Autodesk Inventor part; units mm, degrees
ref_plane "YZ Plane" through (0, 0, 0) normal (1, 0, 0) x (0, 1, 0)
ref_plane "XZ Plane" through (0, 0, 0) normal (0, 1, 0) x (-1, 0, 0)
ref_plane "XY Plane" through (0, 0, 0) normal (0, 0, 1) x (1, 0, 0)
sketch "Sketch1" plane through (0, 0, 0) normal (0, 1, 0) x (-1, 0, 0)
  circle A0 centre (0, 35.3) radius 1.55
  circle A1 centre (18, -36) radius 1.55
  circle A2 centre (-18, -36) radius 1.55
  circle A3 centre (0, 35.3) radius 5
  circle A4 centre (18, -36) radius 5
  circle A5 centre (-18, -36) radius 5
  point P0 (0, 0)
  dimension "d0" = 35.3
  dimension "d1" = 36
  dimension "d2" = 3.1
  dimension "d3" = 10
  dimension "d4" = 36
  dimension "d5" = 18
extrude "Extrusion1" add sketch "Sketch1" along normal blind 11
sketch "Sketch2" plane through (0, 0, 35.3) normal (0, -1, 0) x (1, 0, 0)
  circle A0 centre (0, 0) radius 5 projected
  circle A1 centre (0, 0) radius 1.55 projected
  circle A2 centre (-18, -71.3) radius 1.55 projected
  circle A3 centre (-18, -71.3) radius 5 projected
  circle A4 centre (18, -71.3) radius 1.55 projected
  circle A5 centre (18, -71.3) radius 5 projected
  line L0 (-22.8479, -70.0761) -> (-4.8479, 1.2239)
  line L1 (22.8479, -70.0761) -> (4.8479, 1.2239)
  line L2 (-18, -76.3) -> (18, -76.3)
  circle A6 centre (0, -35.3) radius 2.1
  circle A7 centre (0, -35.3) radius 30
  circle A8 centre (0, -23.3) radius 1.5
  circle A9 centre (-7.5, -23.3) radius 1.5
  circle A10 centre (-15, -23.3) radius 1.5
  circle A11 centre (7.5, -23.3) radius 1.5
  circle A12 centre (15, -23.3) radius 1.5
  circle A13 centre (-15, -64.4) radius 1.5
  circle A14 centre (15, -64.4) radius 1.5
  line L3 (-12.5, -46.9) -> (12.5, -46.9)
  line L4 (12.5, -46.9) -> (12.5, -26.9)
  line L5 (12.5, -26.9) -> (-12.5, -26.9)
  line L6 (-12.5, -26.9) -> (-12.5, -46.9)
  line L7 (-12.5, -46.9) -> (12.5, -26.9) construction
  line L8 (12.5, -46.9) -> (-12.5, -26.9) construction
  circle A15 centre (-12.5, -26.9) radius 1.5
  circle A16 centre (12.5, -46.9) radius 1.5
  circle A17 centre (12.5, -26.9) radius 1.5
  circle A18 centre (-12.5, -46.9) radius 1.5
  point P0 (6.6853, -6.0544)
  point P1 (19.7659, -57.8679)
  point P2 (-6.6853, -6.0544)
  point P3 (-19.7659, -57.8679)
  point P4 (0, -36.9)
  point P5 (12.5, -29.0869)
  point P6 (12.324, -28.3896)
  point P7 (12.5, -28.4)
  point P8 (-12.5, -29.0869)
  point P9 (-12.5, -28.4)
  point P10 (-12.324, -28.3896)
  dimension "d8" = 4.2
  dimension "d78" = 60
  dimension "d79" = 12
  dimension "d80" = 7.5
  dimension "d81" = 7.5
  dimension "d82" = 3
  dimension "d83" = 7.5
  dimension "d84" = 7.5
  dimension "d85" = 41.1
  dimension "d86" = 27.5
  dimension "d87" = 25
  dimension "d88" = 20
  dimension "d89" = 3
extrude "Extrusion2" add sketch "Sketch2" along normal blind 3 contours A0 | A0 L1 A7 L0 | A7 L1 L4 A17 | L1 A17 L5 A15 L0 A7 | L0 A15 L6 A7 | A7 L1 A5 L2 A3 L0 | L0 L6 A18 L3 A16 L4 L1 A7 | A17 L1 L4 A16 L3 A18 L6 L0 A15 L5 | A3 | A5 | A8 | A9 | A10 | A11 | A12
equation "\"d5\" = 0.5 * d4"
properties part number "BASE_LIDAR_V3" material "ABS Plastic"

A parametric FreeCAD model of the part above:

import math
import FreeCAD as App
import Part
import Sketcher

V = App.Vector

doc = App.newDocument("Part")
params = doc.addObject("Spreadsheet::Sheet", "Params")
for row, (alias, value) in enumerate([
    ("sketch1_diameter", "10 mm"),
    ("sketch1_diameter2", "3.1 mm"),
    ("pad1_length", "11 mm"),
    ("sketch2_diameter", "3 mm"),
    ("sketch2_radius", "30 mm"),
    ("sketch2_diameter2", "4.2 mm"),
    ("sketch2_radius2", "5 mm"),
    ("sketch2_diameter3", "3.1 mm"),
    ("pad2_length", "3 mm"),
], start=1):
    params.set(f"A{row}", alias)
    params.set(f"B{row}", "=" + value)
    params.setAlias(f"B{row}", alias)

body = doc.addObject("PartDesign::Body", "Body")
body.AllowCompound = True

# Sketch on XZ plane
sketch1 = doc.addObject("Sketcher::SketchObject", "Sketch")
body.addObject(sketch1)
sketch1.AttachmentSupport = (doc.XZ_Plane, [""])
sketch1.MapMode = "FlatFace"
sketch1.addGeometry(Part.Circle(V(0, 35.3, 0), V(0, 0, 1), 5), False)
sketch1.addGeometry(Part.Circle(V(0, 35.3, 0), V(0, 0, 1), 1.6), False)
sketch1.addGeometry(Part.Circle(V(-18, -36, 0), V(0, 0, 1), 5), False)
sketch1.addGeometry(Part.Circle(V(-18, -36, 0), V(0, 0, 1), 1.6), False)
sketch1.addGeometry(Part.Circle(V(18, -36, 0), V(0, 0, 1), 5), False)
sketch1.addGeometry(Part.Circle(V(18, -36, 0), V(0, 0, 1), 1.6), False)
sketch1.addConstraint(Sketcher.Constraint("Coincident", 1, 3, 0, 3))
sketch1.addConstraint(Sketcher.Constraint("Coincident", 3, 3, 2, 3))
sketch1.addConstraint(Sketcher.Constraint("Coincident", 5, 3, 4, 3))
sketch1.addConstraint(Sketcher.Constraint("Equal", 0, 2))
sketch1.addConstraint(Sketcher.Constraint("Equal", 1, 3))
sketch1.addConstraint(Sketcher.Constraint("Equal", 2, 4))
sketch1.addConstraint(Sketcher.Constraint("Equal", 3, 5))
sketch1.addConstraint(Sketcher.Constraint("Symmetric", 2, 3, 4, 3, -2))
sketch1.addConstraint(Sketcher.Constraint("PointOnObject", 0, 3, -2))
sketch1.addConstraint(Sketcher.Constraint("Diameter", 0, 10.0))
sketch1.addConstraint(Sketcher.Constraint("Diameter", 1, 3.1))
sketch1.addConstraint(Sketcher.Constraint("DistanceX", 2, 3, -1, 1, 18.0))
sketch1.addConstraint(Sketcher.Constraint("DistanceY", 2, 3, -1, 1, 36.0))
sketch1.addConstraint(Sketcher.Constraint("DistanceY", -1, 1, 0, 3, 35.3))
sketch1.setExpression("Constraints[9]", "Params.sketch1_diameter")
sketch1.setExpression("Constraints[10]", "Params.sketch1_diameter2")
pad1 = doc.addObject("PartDesign::Pad", "Pad")
body.addObject(pad1)
pad1.Profile = sketch1
pad1.setExpression("Length", "Params.pad1_length")
pad1.Reversed = True

# Sketch on XZ plane
sketch2 = doc.addObject("Sketcher::SketchObject", "Sketch001")
body.addObject(sketch2)
sketch2.AttachmentSupport = (doc.XZ_Plane, [""])
sketch2.MapMode = "FlatFace"
sketch2.addGeometry(Part.ArcOfCircle(Part.Circle(V(0, 35.3, 0), V(0, 0, 1), 5), math.radians(14), math.radians(166)), False)
sketch2.addGeometry(Part.LineSegment(V(-4.85, 36.52, 0), V(-6.69, 29.25, 0)), False)
sketch2.addGeometry(Part.ArcOfCircle(Part.Circle(V(0, 0, 0), V(0, 0, 1), 30), math.radians(103), math.radians(229)), False)
sketch2.addGeometry(Part.LineSegment(V(-19.77, -22.57, 0), V(-22.85, -34.78, 0)), False)
sketch2.addGeometry(Part.ArcOfCircle(Part.Circle(V(-18, -36, 0), V(0, 0, 1), 5), math.radians(166), math.radians(270)), False)
sketch2.addGeometry(Part.LineSegment(V(-18, -41, 0), V(18, -41, 0)), False)
sketch2.addGeometry(Part.ArcOfCircle(Part.Circle(V(18, -36, 0), V(0, 0, 1), 5), math.radians(-90), math.radians(14)), False)
sketch2.addGeometry(Part.LineSegment(V(22.85, -34.78, 0), V(19.77, -22.57, 0)), False)
sketch2.addGeometry(Part.ArcOfCircle(Part.Circle(V(0, 0, 0), V(0, 0, 1), 30), math.radians(-49), math.radians(77)), False)
sketch2.addGeometry(Part.LineSegment(V(6.69, 29.25, 0), V(4.85, 36.52, 0)), False)
sketch2.addGeometry(Part.Circle(V(0, 35.3, 0), V(0, 0, 1), 1.55), False)
sketch2.addGeometry(Part.LineSegment(V(12.5, 6.9, 0), V(12.5, 6.21, 0)), False)
sketch2.addGeometry(Part.LineSegment(V(12.5, 6.21, 0), V(12.32, 6.91, 0)), False)
sketch2.addGeometry(Part.ArcOfCircle(Part.Circle(V(12.5, 8.4, 0), V(0, 0, 1), 1.5), math.radians(-90), math.radians(263)), False)
sketch2.addGeometry(Part.LineSegment(V(-12.32, 6.91, 0), V(-12.5, 6.21, 0)), False)
sketch2.addGeometry(Part.LineSegment(V(-12.5, 6.21, 0), V(-12.5, 6.9, 0)), False)
sketch2.addGeometry(Part.ArcOfCircle(Part.Circle(V(-12.5, 8.4, 0), V(0, 0, 1), 1.5), math.radians(-83), math.radians(270)), False)
sketch2.addGeometry(Part.Circle(V(12.5, -11.6, 0), V(0, 0, 1), 1.5), False)
sketch2.addGeometry(Part.Circle(V(-12.5, -11.6, 0), V(0, 0, 1), 1.5), False)
sketch2.addGeometry(Part.Circle(V(0, 0, 0), V(0, 0, 1), 2.1), False)
sketch2.addGeometry(Part.Circle(V(15, -29.1, 0), V(0, 0, 1), 1.5), False)
sketch2.addGeometry(Part.Circle(V(-15, -29.1, 0), V(0, 0, 1), 1.5), False)
sketch2.addGeometry(Part.Circle(V(18, -36, 0), V(0, 0, 1), 1.55), False)
sketch2.addGeometry(Part.Circle(V(-18, -36, 0), V(0, 0, 1), 1.55), False)
sketch2.addConstraint(Sketcher.Constraint("Tangent", 0, 2, 1, 1))
sketch2.addConstraint(Sketcher.Constraint("Coincident", 1, 2, 2, 1))
sketch2.addConstraint(Sketcher.Constraint("Coincident", 2, 2, 3, 1))
sketch2.addConstraint(Sketcher.Constraint("Tangent", 3, 2, 4, 1))
sketch2.addConstraint(Sketcher.Constraint("Tangent", 4, 2, 5, 1))
sketch2.addConstraint(Sketcher.Constraint("Tangent", 5, 2, 6, 1))
sketch2.addConstraint(Sketcher.Constraint("Tangent", 6, 2, 7, 1))
sketch2.addConstraint(Sketcher.Constraint("Coincident", 7, 2, 8, 1))
sketch2.addConstraint(Sketcher.Constraint("Coincident", 8, 2, 9, 1))
sketch2.addConstraint(Sketcher.Constraint("Tangent", 9, 2, 0, 1))
sketch2.addConstraint(Sketcher.Constraint("Coincident", 11, 2, 12, 1))
sketch2.addConstraint(Sketcher.Constraint("Coincident", 12, 2, 13, 2))
sketch2.addConstraint(Sketcher.Constraint("Coincident", 13, 1, 11, 1))
sketch2.addConstraint(Sketcher.Constraint("Coincident", 14, 2, 15, 1))
sketch2.addConstraint(Sketcher.Constraint("Coincident", 15, 2, 16, 2))
sketch2.addConstraint(Sketcher.Constraint("Coincident", 16, 1, 14, 1))
sketch2.addConstraint(Sketcher.Constraint("Horizontal", 5))
sketch2.addConstraint(Sketcher.Constraint("Vertical", 11))
sketch2.addConstraint(Sketcher.Constraint("Vertical", 15))
sketch2.addConstraint(Sketcher.Constraint("Coincident", 2, 3, -1, 1))
sketch2.addConstraint(Sketcher.Constraint("Coincident", 8, 3, -1, 1))
sketch2.addConstraint(Sketcher.Constraint("Coincident", 19, 3, -1, 1))
sketch2.addConstraint(Sketcher.Constraint("Coincident", 10, 3, 0, 3))
sketch2.addConstraint(Sketcher.Constraint("Coincident", 22, 3, 6, 3))
sketch2.addConstraint(Sketcher.Constraint("Coincident", 23, 3, 4, 3))
sketch2.addConstraint(Sketcher.Constraint("Equal", 0, 4))
sketch2.addConstraint(Sketcher.Constraint("Equal", 4, 6))
sketch2.addConstraint(Sketcher.Constraint("Equal", 2, 8))
sketch2.addConstraint(Sketcher.Constraint("Equal", 13, 16))
sketch2.addConstraint(Sketcher.Constraint("Equal", 16, 17))
sketch2.addConstraint(Sketcher.Constraint("Equal", 17, 18))
sketch2.addConstraint(Sketcher.Constraint("Equal", 18, 20))
sketch2.addConstraint(Sketcher.Constraint("Equal", 20, 21))
sketch2.addConstraint(Sketcher.Constraint("Equal", 10, 22))
sketch2.addConstraint(Sketcher.Constraint("Equal", 22, 23))
sketch2.addConstraint(Sketcher.Constraint("Symmetric", 13, 3, 16, 3, -2))
sketch2.addConstraint(Sketcher.Constraint("Symmetric", 17, 3, 18, 3, -2))
sketch2.addConstraint(Sketcher.Constraint("Symmetric", 20, 3, 21, 3, -2))
sketch2.addConstraint(Sketcher.Constraint("Symmetric", 3, 2, 6, 2, -2))
sketch2.addConstraint(Sketcher.Constraint("Symmetric", 0, 2, 9, 2, -2))
sketch2.addConstraint(Sketcher.Constraint("Symmetric", 11, 2, 14, 2, -2))
sketch2.addConstraint(Sketcher.Constraint("Parallel", 1, 3))
sketch2.addConstraint(Sketcher.Constraint("Parallel", 9, 12))
sketch2.addConstraint(Sketcher.Constraint("Parallel", 3, 14))
sketch2.addConstraint(Sketcher.Constraint("Vertical", 13, 3, 17, 3))
sketch2.addConstraint(Sketcher.Constraint("Vertical", 17, 3, 11, 2))
sketch2.addConstraint(Sketcher.Constraint("Diameter", 17, 3.0))
sketch2.addConstraint(Sketcher.Constraint("Radius", 2, 30.0))
sketch2.addConstraint(Sketcher.Constraint("Diameter", 19, 4.2))
sketch2.addConstraint(Sketcher.Constraint("Radius", 0, 5.0))
sketch2.addConstraint(Sketcher.Constraint("DistanceX", 16, 3, 13, 3, 25.0))
sketch2.addConstraint(Sketcher.Constraint("DistanceY", 17, 3, 13, 3, 20.0))
sketch2.addConstraint(Sketcher.Constraint("DistanceX", 20, 3, 6, 3, 3.0))
sketch2.addConstraint(Sketcher.Constraint("Diameter", 10, 3.1))
sketch2.addConstraint(Sketcher.Constraint("DistanceX", 18, 3, 20, 3, 27.5))
sketch2.addConstraint(Sketcher.Constraint("DistanceY", 4, 3, -1, 1, 36.0))
sketch2.addConstraint(Sketcher.Constraint("DistanceY", -1, 1, 0, 3, 35.3))
sketch2.addConstraint(Sketcher.Constraint("DistanceY", -1, 1, 13, 3, 8.4))
sketch2.addConstraint(Sketcher.Constraint("DistanceY", 20, 3, -1, 1, 29.1))
sketch2.addConstraint(Sketcher.Constraint("DistanceY", 11, 2, 11, 1, 0.687))
sketch2.addConstraint(Sketcher.Constraint("DistanceX", 0, 2, -1, 1, 4.848))
sketch2.setExpression("Constraints[46]", "Params.sketch2_diameter")
sketch2.setExpression("Constraints[47]", "Params.sketch2_radius")
sketch2.setExpression("Constraints[48]", "Params.sketch2_diameter2")
sketch2.setExpression("Constraints[49]", "Params.sketch2_radius2")
sketch2.setExpression("Constraints[53]", "Params.sketch2_diameter3")
pad2 = doc.addObject("PartDesign::Pad", "Pad001")
body.addObject(pad2)
pad2.Profile = sketch2
pad2.setExpression("Length", "Params.pad2_length")

doc.recompute()
